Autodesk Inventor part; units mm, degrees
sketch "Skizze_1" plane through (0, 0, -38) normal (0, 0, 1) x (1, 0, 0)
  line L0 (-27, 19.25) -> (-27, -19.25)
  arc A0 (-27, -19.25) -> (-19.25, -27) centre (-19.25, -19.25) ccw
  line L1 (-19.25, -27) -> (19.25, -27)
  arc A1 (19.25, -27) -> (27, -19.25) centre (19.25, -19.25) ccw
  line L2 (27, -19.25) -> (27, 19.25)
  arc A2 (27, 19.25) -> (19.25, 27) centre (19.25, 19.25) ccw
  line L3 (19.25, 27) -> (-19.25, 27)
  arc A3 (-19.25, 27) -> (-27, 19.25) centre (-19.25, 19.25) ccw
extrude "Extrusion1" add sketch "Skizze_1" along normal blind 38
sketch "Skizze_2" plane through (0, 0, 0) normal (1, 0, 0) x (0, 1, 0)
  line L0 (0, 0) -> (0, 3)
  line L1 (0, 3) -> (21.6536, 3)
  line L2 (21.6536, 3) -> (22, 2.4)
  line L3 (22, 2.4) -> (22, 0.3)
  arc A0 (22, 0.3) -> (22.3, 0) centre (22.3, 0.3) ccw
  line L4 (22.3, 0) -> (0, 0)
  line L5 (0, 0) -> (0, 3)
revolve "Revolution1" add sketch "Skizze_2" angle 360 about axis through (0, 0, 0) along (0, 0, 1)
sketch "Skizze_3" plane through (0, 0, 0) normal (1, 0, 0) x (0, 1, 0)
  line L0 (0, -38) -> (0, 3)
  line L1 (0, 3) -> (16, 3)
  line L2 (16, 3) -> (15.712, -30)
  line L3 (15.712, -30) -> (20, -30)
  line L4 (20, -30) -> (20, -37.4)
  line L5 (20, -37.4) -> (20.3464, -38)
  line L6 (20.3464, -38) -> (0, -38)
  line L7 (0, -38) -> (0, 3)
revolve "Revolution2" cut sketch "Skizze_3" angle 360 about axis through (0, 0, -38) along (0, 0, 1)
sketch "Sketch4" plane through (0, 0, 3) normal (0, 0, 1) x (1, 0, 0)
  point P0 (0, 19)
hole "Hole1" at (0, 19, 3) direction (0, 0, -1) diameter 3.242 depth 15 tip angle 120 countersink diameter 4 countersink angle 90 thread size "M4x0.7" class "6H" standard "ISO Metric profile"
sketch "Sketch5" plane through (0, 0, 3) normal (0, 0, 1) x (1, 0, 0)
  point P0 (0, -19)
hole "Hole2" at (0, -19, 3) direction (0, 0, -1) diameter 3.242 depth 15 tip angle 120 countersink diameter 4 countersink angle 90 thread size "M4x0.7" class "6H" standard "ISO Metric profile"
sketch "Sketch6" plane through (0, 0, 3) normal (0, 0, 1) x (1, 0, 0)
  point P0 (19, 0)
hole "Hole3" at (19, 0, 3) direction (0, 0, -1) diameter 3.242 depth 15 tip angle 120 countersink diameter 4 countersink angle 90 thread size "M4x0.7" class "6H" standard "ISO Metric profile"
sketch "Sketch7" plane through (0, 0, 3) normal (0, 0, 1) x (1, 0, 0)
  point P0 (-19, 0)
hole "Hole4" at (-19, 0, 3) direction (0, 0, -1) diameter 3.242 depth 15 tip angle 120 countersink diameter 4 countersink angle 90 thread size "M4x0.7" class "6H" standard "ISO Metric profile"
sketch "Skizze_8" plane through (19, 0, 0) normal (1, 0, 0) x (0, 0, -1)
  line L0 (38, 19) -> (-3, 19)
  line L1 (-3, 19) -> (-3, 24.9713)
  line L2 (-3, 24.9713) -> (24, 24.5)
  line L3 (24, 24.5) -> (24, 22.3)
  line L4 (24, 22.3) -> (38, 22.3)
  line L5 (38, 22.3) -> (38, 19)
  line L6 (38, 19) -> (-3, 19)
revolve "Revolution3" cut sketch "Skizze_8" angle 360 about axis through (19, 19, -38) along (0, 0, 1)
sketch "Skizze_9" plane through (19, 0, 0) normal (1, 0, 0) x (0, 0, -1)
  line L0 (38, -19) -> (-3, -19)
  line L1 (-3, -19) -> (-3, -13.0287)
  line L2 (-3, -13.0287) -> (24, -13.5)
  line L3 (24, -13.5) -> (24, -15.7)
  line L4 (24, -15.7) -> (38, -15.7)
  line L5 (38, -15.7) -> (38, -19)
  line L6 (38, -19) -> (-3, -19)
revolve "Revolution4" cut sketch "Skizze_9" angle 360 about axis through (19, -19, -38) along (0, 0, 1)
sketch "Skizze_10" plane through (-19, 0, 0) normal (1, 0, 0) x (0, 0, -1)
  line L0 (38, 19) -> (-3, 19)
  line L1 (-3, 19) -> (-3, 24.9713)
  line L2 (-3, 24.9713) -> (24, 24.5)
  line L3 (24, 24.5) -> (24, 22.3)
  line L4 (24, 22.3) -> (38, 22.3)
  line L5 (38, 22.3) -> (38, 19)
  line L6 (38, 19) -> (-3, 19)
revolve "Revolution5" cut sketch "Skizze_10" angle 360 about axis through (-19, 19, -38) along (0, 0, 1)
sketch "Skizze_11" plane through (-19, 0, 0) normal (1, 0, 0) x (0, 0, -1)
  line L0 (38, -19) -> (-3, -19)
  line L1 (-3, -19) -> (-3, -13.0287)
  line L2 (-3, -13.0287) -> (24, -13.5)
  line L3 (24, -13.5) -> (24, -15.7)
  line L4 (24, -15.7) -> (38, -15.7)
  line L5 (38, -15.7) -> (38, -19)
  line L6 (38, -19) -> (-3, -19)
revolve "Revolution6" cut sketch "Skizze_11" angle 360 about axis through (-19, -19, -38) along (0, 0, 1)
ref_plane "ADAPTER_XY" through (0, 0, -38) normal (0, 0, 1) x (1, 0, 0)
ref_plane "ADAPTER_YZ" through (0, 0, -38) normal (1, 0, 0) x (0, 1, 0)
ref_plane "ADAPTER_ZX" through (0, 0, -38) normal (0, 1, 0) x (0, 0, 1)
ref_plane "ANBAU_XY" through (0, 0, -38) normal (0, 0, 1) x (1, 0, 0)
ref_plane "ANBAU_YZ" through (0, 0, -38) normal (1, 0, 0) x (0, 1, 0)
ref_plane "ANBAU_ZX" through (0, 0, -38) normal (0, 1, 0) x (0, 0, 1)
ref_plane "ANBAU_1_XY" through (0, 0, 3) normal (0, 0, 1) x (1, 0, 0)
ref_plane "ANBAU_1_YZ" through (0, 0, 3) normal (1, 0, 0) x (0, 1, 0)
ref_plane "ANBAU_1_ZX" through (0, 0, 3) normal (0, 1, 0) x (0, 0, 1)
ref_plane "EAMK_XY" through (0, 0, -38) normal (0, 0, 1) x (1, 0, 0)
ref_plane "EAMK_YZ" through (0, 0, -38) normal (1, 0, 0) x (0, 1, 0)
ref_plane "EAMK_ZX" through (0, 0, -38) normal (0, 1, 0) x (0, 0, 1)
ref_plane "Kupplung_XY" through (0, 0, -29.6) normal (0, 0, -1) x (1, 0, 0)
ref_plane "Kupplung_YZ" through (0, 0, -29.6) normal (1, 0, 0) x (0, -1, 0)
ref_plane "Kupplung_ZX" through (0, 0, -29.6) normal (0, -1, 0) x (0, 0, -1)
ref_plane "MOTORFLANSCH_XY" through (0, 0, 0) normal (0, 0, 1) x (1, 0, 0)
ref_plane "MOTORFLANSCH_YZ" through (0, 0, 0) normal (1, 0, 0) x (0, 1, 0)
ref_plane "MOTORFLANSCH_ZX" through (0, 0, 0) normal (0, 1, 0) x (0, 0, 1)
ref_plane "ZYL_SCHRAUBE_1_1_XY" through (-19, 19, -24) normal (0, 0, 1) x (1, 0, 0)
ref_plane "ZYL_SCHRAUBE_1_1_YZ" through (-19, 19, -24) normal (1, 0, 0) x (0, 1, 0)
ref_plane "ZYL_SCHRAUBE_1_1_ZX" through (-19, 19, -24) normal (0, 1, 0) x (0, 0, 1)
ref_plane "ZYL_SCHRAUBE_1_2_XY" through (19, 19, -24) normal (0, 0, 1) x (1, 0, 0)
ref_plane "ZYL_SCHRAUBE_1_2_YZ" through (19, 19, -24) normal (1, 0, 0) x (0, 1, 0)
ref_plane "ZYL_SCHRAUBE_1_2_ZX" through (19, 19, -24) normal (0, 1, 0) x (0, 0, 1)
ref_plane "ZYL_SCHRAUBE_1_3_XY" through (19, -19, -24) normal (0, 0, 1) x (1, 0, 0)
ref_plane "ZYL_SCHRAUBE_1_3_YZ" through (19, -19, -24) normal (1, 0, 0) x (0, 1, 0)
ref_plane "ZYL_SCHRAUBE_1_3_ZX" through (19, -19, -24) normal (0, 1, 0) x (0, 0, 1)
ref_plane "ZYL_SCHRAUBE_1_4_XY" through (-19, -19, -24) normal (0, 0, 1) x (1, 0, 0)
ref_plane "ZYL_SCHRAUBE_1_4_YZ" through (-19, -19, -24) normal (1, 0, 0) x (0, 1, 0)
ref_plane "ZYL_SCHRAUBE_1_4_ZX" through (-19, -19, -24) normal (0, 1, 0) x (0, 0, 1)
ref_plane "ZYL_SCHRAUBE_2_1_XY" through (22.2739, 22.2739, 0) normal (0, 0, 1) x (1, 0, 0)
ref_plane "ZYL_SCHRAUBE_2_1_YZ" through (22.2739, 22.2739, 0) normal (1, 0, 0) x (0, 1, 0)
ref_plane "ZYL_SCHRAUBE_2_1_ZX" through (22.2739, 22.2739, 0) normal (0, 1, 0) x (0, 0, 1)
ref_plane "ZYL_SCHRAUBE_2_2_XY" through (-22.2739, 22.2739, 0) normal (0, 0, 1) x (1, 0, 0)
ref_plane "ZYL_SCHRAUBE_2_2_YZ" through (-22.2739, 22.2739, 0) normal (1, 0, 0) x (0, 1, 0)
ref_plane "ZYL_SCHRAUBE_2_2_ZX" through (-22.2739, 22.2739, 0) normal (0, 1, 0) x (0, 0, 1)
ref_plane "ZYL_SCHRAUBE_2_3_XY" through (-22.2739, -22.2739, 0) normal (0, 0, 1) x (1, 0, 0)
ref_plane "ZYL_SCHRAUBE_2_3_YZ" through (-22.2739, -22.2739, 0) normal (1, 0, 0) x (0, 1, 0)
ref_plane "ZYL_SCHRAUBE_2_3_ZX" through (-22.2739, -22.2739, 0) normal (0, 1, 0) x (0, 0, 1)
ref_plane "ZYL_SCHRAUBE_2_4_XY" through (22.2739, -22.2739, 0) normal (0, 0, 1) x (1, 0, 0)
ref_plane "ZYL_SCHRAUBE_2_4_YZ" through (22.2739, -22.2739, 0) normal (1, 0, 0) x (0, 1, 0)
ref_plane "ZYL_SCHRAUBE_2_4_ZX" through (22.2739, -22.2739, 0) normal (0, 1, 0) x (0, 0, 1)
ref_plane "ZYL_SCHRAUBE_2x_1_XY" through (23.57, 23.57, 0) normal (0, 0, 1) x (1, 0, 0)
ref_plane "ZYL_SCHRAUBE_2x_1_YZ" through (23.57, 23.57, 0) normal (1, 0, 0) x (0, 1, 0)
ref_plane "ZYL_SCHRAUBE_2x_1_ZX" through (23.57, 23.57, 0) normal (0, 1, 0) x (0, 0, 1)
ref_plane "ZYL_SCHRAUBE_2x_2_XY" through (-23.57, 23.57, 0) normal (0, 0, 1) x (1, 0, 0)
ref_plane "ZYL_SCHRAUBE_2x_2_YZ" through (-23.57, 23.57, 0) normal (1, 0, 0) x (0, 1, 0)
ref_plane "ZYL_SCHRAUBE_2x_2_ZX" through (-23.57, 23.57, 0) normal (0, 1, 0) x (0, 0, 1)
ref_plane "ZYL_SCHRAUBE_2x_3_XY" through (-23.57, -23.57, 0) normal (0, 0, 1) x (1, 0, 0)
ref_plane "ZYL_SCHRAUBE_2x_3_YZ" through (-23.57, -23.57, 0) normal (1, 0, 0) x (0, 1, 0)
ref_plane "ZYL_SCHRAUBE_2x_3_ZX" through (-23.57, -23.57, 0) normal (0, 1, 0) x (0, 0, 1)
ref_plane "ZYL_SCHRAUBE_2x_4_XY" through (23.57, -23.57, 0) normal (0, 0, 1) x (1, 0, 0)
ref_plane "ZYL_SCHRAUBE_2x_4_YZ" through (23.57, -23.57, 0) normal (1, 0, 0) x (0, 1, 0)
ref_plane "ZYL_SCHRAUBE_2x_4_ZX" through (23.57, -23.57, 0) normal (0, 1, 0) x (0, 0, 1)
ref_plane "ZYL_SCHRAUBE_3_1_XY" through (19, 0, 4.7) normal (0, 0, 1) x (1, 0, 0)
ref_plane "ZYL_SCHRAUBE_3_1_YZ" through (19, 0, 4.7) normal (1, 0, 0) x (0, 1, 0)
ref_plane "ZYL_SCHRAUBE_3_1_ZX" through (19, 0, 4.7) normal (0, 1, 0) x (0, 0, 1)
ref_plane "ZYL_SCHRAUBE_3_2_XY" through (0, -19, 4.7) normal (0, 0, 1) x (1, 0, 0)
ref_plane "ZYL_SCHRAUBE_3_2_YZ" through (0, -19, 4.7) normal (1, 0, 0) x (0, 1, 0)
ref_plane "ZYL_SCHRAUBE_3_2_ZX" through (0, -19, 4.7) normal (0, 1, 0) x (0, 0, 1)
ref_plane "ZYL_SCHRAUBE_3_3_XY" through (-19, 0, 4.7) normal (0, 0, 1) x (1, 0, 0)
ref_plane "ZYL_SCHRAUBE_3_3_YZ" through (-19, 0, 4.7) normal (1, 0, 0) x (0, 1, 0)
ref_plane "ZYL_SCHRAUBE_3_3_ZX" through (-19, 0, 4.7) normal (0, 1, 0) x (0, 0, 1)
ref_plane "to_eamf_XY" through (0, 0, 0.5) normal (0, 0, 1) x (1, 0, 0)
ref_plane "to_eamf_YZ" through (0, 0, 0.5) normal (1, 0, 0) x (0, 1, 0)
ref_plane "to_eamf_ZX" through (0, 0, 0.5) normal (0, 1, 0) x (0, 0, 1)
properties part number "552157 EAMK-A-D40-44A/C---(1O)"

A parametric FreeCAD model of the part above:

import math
import FreeCAD as App
import Part
import Sketcher
from FreeCAD import Vector
Q = App.Units.Quantity


def add_polygon(sketch, points):
    """Adds a closed chain of lines whose ends are joined by coincident constraints."""
    first, n = sketch.GeometryCount, len(points)
    for a, b in zip(points, points[1:] + points[:1]):
        sketch.addGeometry(Part.LineSegment(App.Vector(*a, 0), App.Vector(*b, 0)), False)
    for i in range(n):
        sketch.addConstraint(Sketcher.Constraint("Coincident", first + i, 2, first + (i + 1) % n, 1))

doc = App.newDocument("Part")
body = doc.addObject("PartDesign::Body", "Body")

# Sketch on XY plane
sketch1 = body.newObject("Sketcher::SketchObject", "Sketch")
sketch1.AttachmentSupport = (doc.getObject("XY_Plane"), [""])
sketch1.MapMode = "FlatFace"
sketch1.AttachmentOffset = App.Placement(Vector(0, 0, -38), App.Rotation())
sketch1.addGeometry([
    Part.ArcOfCircle(Part.Circle(Vector(-19, 19, 0), Vector(0, 0, 1), 8), math.radians(90), math.radians(180)),  # 0
    Part.LineSegment(Vector(-27, 19, 0), Vector(-27, -19, 0)),  # 1
    Part.ArcOfCircle(Part.Circle(Vector(-19, -19, 0), Vector(0, 0, 1), 8), math.radians(180), math.radians(270)),  # 2
    Part.LineSegment(Vector(-19, -27, 0), Vector(19, -27, 0)),  # 3
    Part.ArcOfCircle(Part.Circle(Vector(19, -19, 0), Vector(0, 0, 1), 8), math.radians(-90), math.radians(0)),  # 4
    Part.LineSegment(Vector(27, -19, 0), Vector(27, 19, 0)),  # 5
    Part.ArcOfCircle(Part.Circle(Vector(19, 19, 0), Vector(0, 0, 1), 8), math.radians(0), math.radians(90)),  # 6
    Part.LineSegment(Vector(19, 27, 0), Vector(-19, 27, 0)),  # 7
], False)
sketch1.addConstraint([
    Sketcher.Constraint("Tangent", 0, 2, 1, 1),
    Sketcher.Constraint("Tangent", 1, 2, 2, 1),
    Sketcher.Constraint("Tangent", 2, 2, 3, 1),
    Sketcher.Constraint("Tangent", 3, 2, 4, 1),
    Sketcher.Constraint("Tangent", 4, 2, 5, 1),
    Sketcher.Constraint("Tangent", 5, 2, 6, 1),
    Sketcher.Constraint("Tangent", 6, 2, 7, 1),
    Sketcher.Constraint("Tangent", 7, 2, 0, 1),
    Sketcher.Constraint("Vertical", 1),
    Sketcher.Constraint("Horizontal", 3),
    Sketcher.Constraint("Vertical", 5),
    Sketcher.Constraint("Horizontal", 7),
    Sketcher.Constraint("Equal", 0, 2),
    Sketcher.Constraint("Equal", 2, 4),
    Sketcher.Constraint("Equal", 4, 6),
    Sketcher.Constraint("Symmetric", 0, 3, 4, 3, -1, 1),
    Sketcher.Constraint("Equal", 7, 1),
    Sketcher.Constraint("Radius", 0, 7.75),
    Sketcher.Constraint("DistanceX", 3, 1, 3, 2, 38.5),
])
pad1 = body.newObject("PartDesign::Pad", "Pad")
pad1.Profile = sketch1
pad1.Length = 38

# Sketch on YZ plane
sketch2 = body.newObject("Sketcher::SketchObject", "Sketch001")
sketch2.AttachmentSupport = (doc.getObject("YZ_Plane"), [""])
sketch2.MapMode = "FlatFace"
sketch2.addGeometry([
    Part.LineSegment(Vector(0, 3, 0), Vector(0, 0, 0)),  # 0
    Part.LineSegment(Vector(0, 0, 0), Vector(22.3, 0, 0)),  # 1
    Part.ArcOfCircle(Part.Circle(Vector(22.3, 0.3, 0), Vector(0, 0, 1), 0.3), math.radians(180), math.radians(270)),  # 2
    Part.LineSegment(Vector(22, 0.3, 0), Vector(22, 2.4, 0)),  # 3
    Part.LineSegment(Vector(22, 2.4, 0), Vector(21.65, 3, 0)),  # 4
    Part.LineSegment(Vector(21.65, 3, 0), Vector(0, 3, 0)),  # 5
], False)
sketch2.addConstraint([
    Sketcher.Constraint("Coincident", 0, 2, 1, 1),
    Sketcher.Constraint("Tangent", 1, 2, 2, 2),
    Sketcher.Constraint("Tangent", 2, 1, 3, 1),
    Sketcher.Constraint("Coincident", 3, 2, 4, 1),
    Sketcher.Constraint("Coincident", 4, 2, 5, 1),
    Sketcher.Constraint("Coincident", 5, 2, 0, 1),
    Sketcher.Constraint("Vertical", 0),
    Sketcher.Constraint("Horizontal", 1),
    Sketcher.Constraint("Vertical", 3),
    Sketcher.Constraint("Horizontal", 5),
    Sketcher.Constraint("Coincident", 0, 2, -1, 1),
    Sketcher.Constraint("Radius", 2, 0.3),
    Sketcher.Constraint("DistanceY", 0, 2, 0, 1, 3.0),
    Sketcher.Constraint("Angle", 4, Q("119.9993 deg")),
    Sketcher.Constraint("DistanceX", 1, 1, 1, 2, 22.3),
    Sketcher.Constraint("DistanceY", 3, 1, 3, 2, 2.1),
])
revolution = body.newObject("PartDesign::Revolution", "Revolution")
revolution.Profile = sketch2
revolution.ReferenceAxis = (sketch2, ["V_Axis"])
revolution.Angle = 360

# Sketch on YZ plane
sketch3 = body.newObject("Sketcher::SketchObject", "Sketch002")
sketch3.AttachmentSupport = (doc.getObject("YZ_Plane"), [""])
sketch3.MapMode = "FlatFace"
add_polygon(sketch3, [(0, 3), (0, -38), (20.3, -38), (20, -37.4), (20, -30), (15.7, -30), (16, 3)])  # lines 0-6
sketch3.addConstraint([
    Sketcher.Constraint("Vertical", 0),
    Sketcher.Constraint("Horizontal", 1),
    Sketcher.Constraint("Vertical", 3),
    Sketcher.Constraint("Horizontal", 4),
    Sketcher.Constraint("Horizontal", 6),
    Sketcher.Constraint("PointOnObject", 0, 2, -2),
    Sketcher.Constraint("DistanceX", 6, 2, 6, 1, 16.0),
    Sketcher.Constraint("DistanceY", 0, 2, 0, 1, 41.0),
    Sketcher.Constraint("Angle", 2, Q("119.9993 deg")),
    Sketcher.Constraint("DistanceY", 3, 1, 3, 2, 7.4),
    Sketcher.Constraint("DistanceY", 0, 2, -1, 1, 38.0),
    Sketcher.Constraint("DistanceX", -1, 1, 2, 2, 20.0),
    Sketcher.Constraint("DistanceY", 3, 2, -1, 1, 30.0),
    Sketcher.Constraint("Angle", 5, Q("89.5 deg")),
])
groove = body.newObject("PartDesign::Groove", "Groove")
groove.Profile = sketch3
groove.ReferenceAxis = (sketch3, ["V_Axis"])
groove.Angle = 360

# Sketch on XY plane
sketch4 = body.newObject("Sketcher::SketchObject", "Sketch003")
sketch4.AttachmentSupport = (doc.getObject("XY_Plane"), [""])
sketch4.MapMode = "FlatFace"
sketch4.AttachmentOffset = App.Placement(Vector(0, 0, 3), App.Rotation())
sketch4.addGeometry(Part.Circle(Vector(0, 19, 0), Vector(0, 0, 1), 1.6), False)
sketch4.addConstraint([
    Sketcher.Constraint("PointOnObject", 0, 3, -2),
    Sketcher.Constraint("Diameter", 0, 3.242),
    Sketcher.Constraint("DistanceY", -1, 1, 0, 3, 19.0),
])
doc.recompute()
hole = body.newObject("PartDesign::Hole", "Hole")
hole.Profile = sketch4
hole.ThreadType = "None"
hole.Diameter = 3.242
hole.DepthType = "Dimension"
hole.Depth = 15
hole.DrillPoint = "Angled"
hole.DrillPointAngle = 120
hole.HoleCutType = "Countersink"
hole.HoleCutDiameter = 4
hole.HoleCutCountersinkAngle = 90

# Sketch on XY plane
sketch5 = body.newObject("Sketcher::SketchObject", "Sketch004")
sketch5.AttachmentSupport = (doc.getObject("XY_Plane"), [""])
sketch5.MapMode = "FlatFace"
sketch5.AttachmentOffset = App.Placement(Vector(0, 0, 3), App.Rotation())
sketch5.addGeometry(Part.Circle(Vector(0, -19, 0), Vector(0, 0, 1), 1.6), False)
sketch5.addConstraint([
    Sketcher.Constraint("PointOnObject", 0, 3, -2),
    Sketcher.Constraint("Diameter", 0, 3.242),
    Sketcher.Constraint("DistanceY", 0, 3, -1, 1, 19.0),
])
doc.recompute()
hole2 = body.newObject("PartDesign::Hole", "Hole001")
hole2.Profile = sketch5
hole2.ThreadType = "None"
hole2.Diameter = 3.242
hole2.DepthType = "Dimension"
hole2.Depth = 15
hole2.DrillPoint = "Angled"
hole2.DrillPointAngle = 120
hole2.HoleCutType = "Countersink"
hole2.HoleCutDiameter = 4
hole2.HoleCutCountersinkAngle = 90

# Sketch on XY plane
sketch6 = body.newObject("Sketcher::SketchObject", "Sketch005")
sketch6.AttachmentSupport = (doc.getObject("XY_Plane"), [""])
sketch6.MapMode = "FlatFace"
sketch6.AttachmentOffset = App.Placement(Vector(0, 0, 3), App.Rotation())
sketch6.addGeometry(Part.Circle(Vector(19, 0, 0), Vector(0, 0, 1), 1.6), False)
sketch6.addConstraint([
    Sketcher.Constraint("PointOnObject", 0, 3, -1),
    Sketcher.Constraint("Diameter", 0, 3.242),
    Sketcher.Constraint("DistanceX", -1, 1, 0, 3, 19.0),
])
doc.recompute()
hole3 = body.newObject("PartDesign::Hole", "Hole002")
hole3.Profile = sketch6
hole3.ThreadType = "None"
hole3.Diameter = 3.242
hole3.DepthType = "Dimension"
hole3.Depth = 15
hole3.DrillPoint = "Angled"
hole3.DrillPointAngle = 120
hole3.HoleCutType = "Countersink"
hole3.HoleCutDiameter = 4
hole3.HoleCutCountersinkAngle = 90

# Sketch on XY plane
sketch7 = body.newObject("Sketcher::SketchObject", "Sketch006")
sketch7.AttachmentSupport = (doc.getObject("XY_Plane"), [""])
sketch7.MapMode = "FlatFace"
sketch7.AttachmentOffset = App.Placement(Vector(0, 0, 3), App.Rotation())
sketch7.addGeometry(Part.Circle(Vector(-19, 0, 0), Vector(0, 0, 1), 1.6), False)
sketch7.addConstraint([
    Sketcher.Constraint("PointOnObject", 0, 3, -1),
    Sketcher.Constraint("Diameter", 0, 3.242),
    Sketcher.Constraint("DistanceX", 0, 3, -1, 1, 19.0),
])
doc.recompute()
hole4 = body.newObject("PartDesign::Hole", "Hole003")
hole4.Profile = sketch7
hole4.ThreadType = "None"
hole4.Diameter = 3.242
hole4.DepthType = "Dimension"
hole4.Depth = 15
hole4.DrillPoint = "Angled"
hole4.DrillPointAngle = 120
hole4.HoleCutType = "Countersink"
hole4.HoleCutDiameter = 4
hole4.HoleCutCountersinkAngle = 90

# Sketch on YZ plane
sketch8 = body.newObject("Sketcher::SketchObject", "Sketch007")
sketch8.AttachmentSupport = (doc.getObject("YZ_Plane"), [""])
sketch8.MapMode = "FlatFace"
sketch8.AttachmentOffset = App.Placement(Vector(0, 0, 19), App.Rotation())
add_polygon(sketch8, [(19, 3), (19, -38), (22.3, -38), (22.3, -24), (24.5, -24), (25, 3)])  # lines 0-5
sketch8.addGeometry(Part.LineSegment(Vector(19, -38, 0), Vector(19, 3, 0)), True)  # axis
sketch8.addConstraint([
    Sketcher.Constraint("Vertical", 0),
    Sketcher.Constraint("Horizontal", 1),
    Sketcher.Constraint("Vertical", 2),
    Sketcher.Constraint("Horizontal", 3),
    Sketcher.Constraint("Horizontal", 5),
    Sketcher.Constraint("Vertical", 6),
    Sketcher.Constraint("Coincident", 6, 1, 0, 2),
    Sketcher.Constraint("Horizontal", 4, 2, 6, 2),
    Sketcher.Constraint("DistanceY", 0, 2, 0, 1, 41.0),
    Sketcher.Constraint("DistanceY", 2, 1, 2, 2, 14.0),
    Sketcher.Constraint("Angle", 4, Q("89 deg")),
    Sketcher.Constraint("DistanceX", 1, 1, 1, 2, 3.3),
    Sketcher.Constraint("DistanceX", 3, 1, 3, 2, 2.2),
    Sketcher.Constraint("DistanceX", -1, 1, 0, 2, 19.0),
    Sketcher.Constraint("DistanceY", 0, 2, -1, 1, 38.0),
])
groove2 = body.newObject("PartDesign::Groove", "Groove001")
groove2.Profile = sketch8
groove2.ReferenceAxis = (sketch8, ["Axis0"])
groove2.Angle = 360

# Sketch on YZ plane
sketch9 = body.newObject("Sketcher::SketchObject", "Sketch008")
sketch9.AttachmentSupport = (doc.getObject("YZ_Plane"), [""])
sketch9.MapMode = "FlatFace"
sketch9.AttachmentOffset = App.Placement(Vector(0, 0, 19), App.Rotation())
add_polygon(sketch9, [(-19, 3), (-19, -38), (-15.7, -38), (-15.7, -24), (-13.5, -24), (-13, 3)])  # lines 0-5
sketch9.addGeometry(Part.LineSegment(Vector(-19, -38, 0), Vector(-19, 3, 0)), True)  # axis
sketch9.addConstraint([
    Sketcher.Constraint("Vertical", 0),
    Sketcher.Constraint("Horizontal", 1),
    Sketcher.Constraint("Vertical", 2),
    Sketcher.Constraint("Horizontal", 3),
    Sketcher.Constraint("Horizontal", 5),
    Sketcher.Constraint("Vertical", 6),
    Sketcher.Constraint("Coincident", 6, 1, 0, 2),
    Sketcher.Constraint("Horizontal", 4, 2, 6, 2),
    Sketcher.Constraint("DistanceY", 0, 2, 0, 1, 41.0),
    Sketcher.Constraint("DistanceY", 2, 1, 2, 2, 14.0),
    Sketcher.Constraint("Angle", 4, Q("89 deg")),
    Sketcher.Constraint("DistanceX", 1, 1, 1, 2, 3.3),
    Sketcher.Constraint("DistanceX", 3, 1, 3, 2, 2.2),
    Sketcher.Constraint("DistanceX", 0, 2, -1, 1, 19.0),
    Sketcher.Constraint("DistanceY", 0, 2, -1, 1, 38.0),
])
groove3 = body.newObject("PartDesign::Groove", "Groove002")
groove3.Profile = sketch9
groove3.ReferenceAxis = (sketch9, ["Axis0"])
groove3.Angle = 360

# Sketch on YZ plane
sketch10 = body.newObject("Sketcher::SketchObject", "Sketch009")
sketch10.AttachmentSupport = (doc.getObject("YZ_Plane"), [""])
sketch10.MapMode = "FlatFace"
sketch10.AttachmentOffset = App.Placement(Vector(0, 0, -19), App.Rotation())
add_polygon(sketch10, [(19, 3), (19, -38), (22.3, -38), (22.3, -24), (24.5, -24), (25, 3)])  # lines 0-5
sketch10.addGeometry(Part.LineSegment(Vector(19, -38, 0), Vector(19, 3, 0)), True)  # axis
sketch10.addConstraint([
    Sketcher.Constraint("Vertical", 0),
    Sketcher.Constraint("Horizontal", 1),
    Sketcher.Constraint("Vertical", 2),
    Sketcher.Constraint("Horizontal", 3),
    Sketcher.Constraint("Horizontal", 5),
    Sketcher.Constraint("Vertical", 6),
    Sketcher.Constraint("Coincident", 6, 1, 0, 2),
    Sketcher.Constraint("Horizontal", 4, 2, 6, 2),
    Sketcher.Constraint("DistanceY", 0, 2, 0, 1, 41.0),
    Sketcher.Constraint("DistanceY", 2, 1, 2, 2, 14.0),
    Sketcher.Constraint("Angle", 4, Q("89 deg")),
    Sketcher.Constraint("DistanceX", 1, 1, 1, 2, 3.3),
    Sketcher.Constraint("DistanceX", 3, 1, 3, 2, 2.2),
    Sketcher.Constraint("DistanceX", -1, 1, 0, 2, 19.0),
    Sketcher.Constraint("DistanceY", 0, 2, -1, 1, 38.0),
])
groove4 = body.newObject("PartDesign::Groove", "Groove003")
groove4.Profile = sketch10
groove4.ReferenceAxis = (sketch10, ["Axis0"])
groove4.Angle = 360

# Sketch on YZ plane
sketch11 = body.newObject("Sketcher::SketchObject", "Sketch010")
sketch11.AttachmentSupport = (doc.getObject("YZ_Plane"), [""])
sketch11.MapMode = "FlatFace"
sketch11.AttachmentOffset = App.Placement(Vector(0, 0, -19), App.Rotation())
add_polygon(sketch11, [(-19, 3), (-19, -38), (-15.7, -38), (-15.7, -24), (-13.5, -24), (-13, 3)])  # lines 0-5
sketch11.addGeometry(Part.LineSegment(Vector(-19, -38, 0), Vector(-19, 3, 0)), True)  # axis
sketch11.addConstraint([
    Sketcher.Constraint("Vertical", 0),
    Sketcher.Constraint("Horizontal", 1),
    Sketcher.Constraint("Vertical", 2),
    Sketcher.Constraint("Horizontal", 3),
    Sketcher.Constraint("Horizontal", 5),
    Sketcher.Constraint("Vertical", 6),
    Sketcher.Constraint("Coincident", 6, 1, 0, 2),
    Sketcher.Constraint("Horizontal", 4, 2, 6, 2),
    Sketcher.Constraint("DistanceY", 0, 2, 0, 1, 41.0),
    Sketcher.Constraint("DistanceY", 2, 1, 2, 2, 14.0),
    Sketcher.Constraint("Angle", 4, Q("89 deg")),
    Sketcher.Constraint("DistanceX", 1, 1, 1, 2, 3.3),
    Sketcher.Constraint("DistanceX", 3, 1, 3, 2, 2.2),
    Sketcher.Constraint("DistanceX", 0, 2, -1, 1, 19.0),
    Sketcher.Constraint("DistanceY", 0, 2, -1, 1, 38.0),
])
groove5 = body.newObject("PartDesign::Groove", "Groove004")
groove5.Profile = sketch11
groove5.ReferenceAxis = (sketch11, ["Axis0"])
groove5.Angle = 360

doc.recompute()
